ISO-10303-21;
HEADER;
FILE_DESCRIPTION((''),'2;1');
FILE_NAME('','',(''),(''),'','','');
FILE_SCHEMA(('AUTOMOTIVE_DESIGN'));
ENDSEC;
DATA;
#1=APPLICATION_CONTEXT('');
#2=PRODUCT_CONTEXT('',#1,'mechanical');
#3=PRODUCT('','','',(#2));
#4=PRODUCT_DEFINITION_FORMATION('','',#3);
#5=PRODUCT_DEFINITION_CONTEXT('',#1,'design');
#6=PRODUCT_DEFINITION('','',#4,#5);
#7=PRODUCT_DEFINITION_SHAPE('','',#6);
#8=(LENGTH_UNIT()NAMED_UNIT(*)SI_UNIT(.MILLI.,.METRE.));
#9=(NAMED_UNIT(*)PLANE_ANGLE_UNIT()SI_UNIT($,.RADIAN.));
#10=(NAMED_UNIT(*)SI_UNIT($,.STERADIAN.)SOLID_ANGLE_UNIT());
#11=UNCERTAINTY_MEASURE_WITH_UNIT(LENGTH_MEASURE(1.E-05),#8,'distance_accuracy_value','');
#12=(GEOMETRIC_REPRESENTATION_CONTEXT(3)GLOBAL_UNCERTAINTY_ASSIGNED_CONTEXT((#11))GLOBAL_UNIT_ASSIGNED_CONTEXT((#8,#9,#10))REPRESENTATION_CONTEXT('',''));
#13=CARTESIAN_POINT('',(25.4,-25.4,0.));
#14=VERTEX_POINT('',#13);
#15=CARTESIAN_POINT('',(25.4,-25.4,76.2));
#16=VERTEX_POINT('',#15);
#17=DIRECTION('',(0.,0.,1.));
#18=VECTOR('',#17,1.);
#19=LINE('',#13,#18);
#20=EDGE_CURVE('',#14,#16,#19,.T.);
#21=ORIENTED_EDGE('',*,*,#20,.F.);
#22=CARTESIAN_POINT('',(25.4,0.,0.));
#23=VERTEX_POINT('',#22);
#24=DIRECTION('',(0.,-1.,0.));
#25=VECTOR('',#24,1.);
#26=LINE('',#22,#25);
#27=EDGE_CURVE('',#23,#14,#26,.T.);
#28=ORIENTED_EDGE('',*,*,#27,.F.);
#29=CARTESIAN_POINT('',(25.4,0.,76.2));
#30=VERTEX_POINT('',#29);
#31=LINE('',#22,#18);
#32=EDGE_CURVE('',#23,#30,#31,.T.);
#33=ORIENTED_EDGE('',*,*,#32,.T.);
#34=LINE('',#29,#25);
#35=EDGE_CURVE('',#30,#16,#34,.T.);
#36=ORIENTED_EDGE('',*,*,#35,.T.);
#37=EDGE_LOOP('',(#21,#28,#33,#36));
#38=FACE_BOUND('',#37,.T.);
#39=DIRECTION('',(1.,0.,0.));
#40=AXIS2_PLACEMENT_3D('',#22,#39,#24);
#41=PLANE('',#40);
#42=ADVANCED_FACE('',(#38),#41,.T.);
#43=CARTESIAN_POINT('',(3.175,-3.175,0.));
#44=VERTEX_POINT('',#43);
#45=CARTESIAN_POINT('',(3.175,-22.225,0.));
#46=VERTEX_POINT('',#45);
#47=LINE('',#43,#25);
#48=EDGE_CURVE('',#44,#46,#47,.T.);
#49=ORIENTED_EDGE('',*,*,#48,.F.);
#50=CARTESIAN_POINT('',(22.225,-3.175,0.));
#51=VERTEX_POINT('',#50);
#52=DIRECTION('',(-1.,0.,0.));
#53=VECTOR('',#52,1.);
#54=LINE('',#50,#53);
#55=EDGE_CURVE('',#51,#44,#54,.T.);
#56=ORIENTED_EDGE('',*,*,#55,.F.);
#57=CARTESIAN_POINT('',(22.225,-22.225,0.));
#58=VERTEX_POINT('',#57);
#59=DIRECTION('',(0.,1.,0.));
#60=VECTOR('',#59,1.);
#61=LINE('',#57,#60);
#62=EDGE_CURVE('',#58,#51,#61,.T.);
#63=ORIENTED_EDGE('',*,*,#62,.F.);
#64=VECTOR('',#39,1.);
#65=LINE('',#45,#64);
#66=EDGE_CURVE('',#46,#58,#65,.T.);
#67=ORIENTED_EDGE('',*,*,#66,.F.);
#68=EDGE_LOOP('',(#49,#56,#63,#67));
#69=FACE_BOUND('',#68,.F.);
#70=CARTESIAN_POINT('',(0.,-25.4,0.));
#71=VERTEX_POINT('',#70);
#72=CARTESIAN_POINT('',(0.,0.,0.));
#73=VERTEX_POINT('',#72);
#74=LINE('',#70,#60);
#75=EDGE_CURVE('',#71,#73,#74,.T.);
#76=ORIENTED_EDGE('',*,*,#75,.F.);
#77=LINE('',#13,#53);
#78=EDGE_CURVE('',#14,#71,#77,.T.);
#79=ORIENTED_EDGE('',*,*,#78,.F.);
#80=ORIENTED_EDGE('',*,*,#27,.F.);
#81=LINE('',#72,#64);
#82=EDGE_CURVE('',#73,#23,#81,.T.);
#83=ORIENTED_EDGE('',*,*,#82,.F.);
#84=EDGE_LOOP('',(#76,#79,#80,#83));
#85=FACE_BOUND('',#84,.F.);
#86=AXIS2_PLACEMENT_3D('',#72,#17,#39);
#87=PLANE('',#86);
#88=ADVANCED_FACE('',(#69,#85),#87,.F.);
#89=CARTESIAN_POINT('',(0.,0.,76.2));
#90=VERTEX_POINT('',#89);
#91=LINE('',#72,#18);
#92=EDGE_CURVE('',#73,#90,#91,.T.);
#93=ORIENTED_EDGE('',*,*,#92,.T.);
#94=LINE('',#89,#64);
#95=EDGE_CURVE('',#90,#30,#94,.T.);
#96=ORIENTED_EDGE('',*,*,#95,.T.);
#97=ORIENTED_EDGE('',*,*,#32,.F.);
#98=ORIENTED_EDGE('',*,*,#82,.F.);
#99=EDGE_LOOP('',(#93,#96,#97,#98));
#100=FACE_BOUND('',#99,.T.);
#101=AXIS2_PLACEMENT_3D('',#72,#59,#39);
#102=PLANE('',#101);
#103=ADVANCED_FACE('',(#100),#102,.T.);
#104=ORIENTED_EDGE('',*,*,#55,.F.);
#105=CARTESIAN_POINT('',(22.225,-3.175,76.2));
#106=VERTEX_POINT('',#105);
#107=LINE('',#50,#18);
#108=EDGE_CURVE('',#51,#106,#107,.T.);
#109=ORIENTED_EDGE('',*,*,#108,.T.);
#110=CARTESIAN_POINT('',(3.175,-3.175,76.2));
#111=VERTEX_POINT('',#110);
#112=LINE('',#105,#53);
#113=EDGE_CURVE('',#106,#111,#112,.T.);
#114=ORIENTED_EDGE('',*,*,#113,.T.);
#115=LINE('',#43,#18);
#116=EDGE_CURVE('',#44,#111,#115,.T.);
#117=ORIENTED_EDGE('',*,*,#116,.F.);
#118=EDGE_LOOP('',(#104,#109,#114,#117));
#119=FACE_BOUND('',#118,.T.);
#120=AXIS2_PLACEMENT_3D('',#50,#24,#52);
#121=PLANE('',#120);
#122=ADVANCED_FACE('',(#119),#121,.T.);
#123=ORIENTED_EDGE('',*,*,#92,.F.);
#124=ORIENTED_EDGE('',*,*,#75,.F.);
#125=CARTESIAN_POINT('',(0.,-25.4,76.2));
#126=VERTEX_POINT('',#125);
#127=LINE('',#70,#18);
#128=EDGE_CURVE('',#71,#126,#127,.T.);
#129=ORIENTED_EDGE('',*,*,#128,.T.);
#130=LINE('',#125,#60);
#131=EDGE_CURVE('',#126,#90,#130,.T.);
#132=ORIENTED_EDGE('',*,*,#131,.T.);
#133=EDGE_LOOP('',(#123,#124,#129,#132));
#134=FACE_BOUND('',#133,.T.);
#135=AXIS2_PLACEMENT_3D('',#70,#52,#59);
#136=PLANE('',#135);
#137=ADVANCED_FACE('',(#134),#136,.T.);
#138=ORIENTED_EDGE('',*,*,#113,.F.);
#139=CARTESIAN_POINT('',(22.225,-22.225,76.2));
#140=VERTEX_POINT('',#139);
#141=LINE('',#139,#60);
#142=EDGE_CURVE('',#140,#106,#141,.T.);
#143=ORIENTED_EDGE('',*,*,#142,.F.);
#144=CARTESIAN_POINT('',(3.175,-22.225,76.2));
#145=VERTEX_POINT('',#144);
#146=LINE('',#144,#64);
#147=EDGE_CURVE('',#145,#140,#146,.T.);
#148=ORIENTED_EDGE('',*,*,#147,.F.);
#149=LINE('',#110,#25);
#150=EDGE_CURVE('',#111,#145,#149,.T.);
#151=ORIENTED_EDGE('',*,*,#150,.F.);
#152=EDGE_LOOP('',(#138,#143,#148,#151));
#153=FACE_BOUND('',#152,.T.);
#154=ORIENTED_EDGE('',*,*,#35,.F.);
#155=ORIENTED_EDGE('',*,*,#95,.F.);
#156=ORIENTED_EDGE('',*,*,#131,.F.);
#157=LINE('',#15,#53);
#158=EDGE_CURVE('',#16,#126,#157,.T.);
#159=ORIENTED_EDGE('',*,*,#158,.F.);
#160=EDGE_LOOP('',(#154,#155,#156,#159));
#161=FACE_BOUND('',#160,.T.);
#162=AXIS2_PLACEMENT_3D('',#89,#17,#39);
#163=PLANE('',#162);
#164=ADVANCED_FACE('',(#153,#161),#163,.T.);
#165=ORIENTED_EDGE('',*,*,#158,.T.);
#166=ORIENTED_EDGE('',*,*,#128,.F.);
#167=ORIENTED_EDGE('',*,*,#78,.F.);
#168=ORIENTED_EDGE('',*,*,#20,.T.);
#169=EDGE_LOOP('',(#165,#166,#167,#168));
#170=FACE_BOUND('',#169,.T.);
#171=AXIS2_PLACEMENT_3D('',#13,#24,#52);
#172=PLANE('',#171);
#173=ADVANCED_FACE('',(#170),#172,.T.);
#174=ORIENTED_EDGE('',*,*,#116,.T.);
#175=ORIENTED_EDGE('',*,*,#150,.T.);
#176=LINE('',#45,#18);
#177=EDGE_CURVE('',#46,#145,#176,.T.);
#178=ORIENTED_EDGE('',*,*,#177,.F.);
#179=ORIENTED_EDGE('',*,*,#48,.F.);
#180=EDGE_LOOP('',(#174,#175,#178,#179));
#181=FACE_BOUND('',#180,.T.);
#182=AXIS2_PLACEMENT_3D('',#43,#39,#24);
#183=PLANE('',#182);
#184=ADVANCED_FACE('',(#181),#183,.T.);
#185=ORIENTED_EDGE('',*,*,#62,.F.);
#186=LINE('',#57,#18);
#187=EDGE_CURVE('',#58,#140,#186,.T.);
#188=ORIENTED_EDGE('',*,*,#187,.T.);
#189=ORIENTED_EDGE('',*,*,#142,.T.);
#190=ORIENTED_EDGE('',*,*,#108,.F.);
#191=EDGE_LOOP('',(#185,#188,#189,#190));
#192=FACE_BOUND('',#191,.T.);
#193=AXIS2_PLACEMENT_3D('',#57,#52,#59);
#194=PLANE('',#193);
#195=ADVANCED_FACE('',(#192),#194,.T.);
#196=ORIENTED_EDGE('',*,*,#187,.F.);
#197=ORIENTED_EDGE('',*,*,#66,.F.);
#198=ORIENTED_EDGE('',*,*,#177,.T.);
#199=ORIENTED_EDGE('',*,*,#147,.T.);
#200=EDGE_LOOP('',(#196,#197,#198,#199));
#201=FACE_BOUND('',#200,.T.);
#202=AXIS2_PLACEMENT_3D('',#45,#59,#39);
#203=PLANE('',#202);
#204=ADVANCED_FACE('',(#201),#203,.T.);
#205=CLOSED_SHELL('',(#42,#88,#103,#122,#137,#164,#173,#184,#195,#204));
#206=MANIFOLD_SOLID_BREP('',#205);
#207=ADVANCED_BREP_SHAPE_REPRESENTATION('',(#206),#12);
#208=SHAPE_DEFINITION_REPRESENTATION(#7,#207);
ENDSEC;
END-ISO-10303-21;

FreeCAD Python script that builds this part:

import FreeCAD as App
import Part
import Sketcher
Q = App.Units.Quantity

doc = App.newDocument("Part")
body = doc.addObject("PartDesign::Body", "Body")

# Sketch on XY plane
sketch1 = doc.addObject("Sketcher::SketchObject", "Sketch")
body.addObject(sketch1)
sketch1.AttachmentSupport = (doc.XY_Plane, [""])
sketch1.MapMode = "FlatFace"
sketch1.addGeometry(Part.LineSegment(App.Vector(25, 0, 0), App.Vector(0, 0, 0)), False)
sketch1.addGeometry(Part.LineSegment(App.Vector(0, 0, 0), App.Vector(0, -25, 0)), False)
sketch1.addGeometry(Part.LineSegment(App.Vector(0, -25, 0), App.Vector(25, -25, 0)), False)
sketch1.addGeometry(Part.LineSegment(App.Vector(25, -25, 0), App.Vector(25, 0, 0)), False)
sketch1.addGeometry(Part.LineSegment(App.Vector(3, -3, 0), App.Vector(22, -3, 0)), False)
sketch1.addGeometry(Part.LineSegment(App.Vector(22, -3, 0), App.Vector(22, -22, 0)), False)
sketch1.addGeometry(Part.LineSegment(App.Vector(22, -22, 0), App.Vector(3, -22, 0)), False)
sketch1.addGeometry(Part.LineSegment(App.Vector(3, -22, 0), App.Vector(3, -3, 0)), False)
sketch1.addConstraint(Sketcher.Constraint("Coincident", 0, 2, 1, 1))
sketch1.addConstraint(Sketcher.Constraint("Coincident", 1, 2, 2, 1))
sketch1.addConstraint(Sketcher.Constraint("Coincident", 2, 2, 3, 1))
sketch1.addConstraint(Sketcher.Constraint("Coincident", 3, 2, 0, 1))
sketch1.addConstraint(Sketcher.Constraint("Coincident", 4, 2, 5, 1))
sketch1.addConstraint(Sketcher.Constraint("Coincident", 5, 2, 6, 1))
sketch1.addConstraint(Sketcher.Constraint("Coincident", 6, 2, 7, 1))
sketch1.addConstraint(Sketcher.Constraint("Coincident", 7, 2, 4, 1))
sketch1.addConstraint(Sketcher.Constraint("Horizontal", 0))
sketch1.addConstraint(Sketcher.Constraint("Vertical", 1))
sketch1.addConstraint(Sketcher.Constraint("Horizontal", 2))
sketch1.addConstraint(Sketcher.Constraint("Vertical", 3))
sketch1.addConstraint(Sketcher.Constraint("Horizontal", 4))
sketch1.addConstraint(Sketcher.Constraint("Vertical", 5))
sketch1.addConstraint(Sketcher.Constraint("Horizontal", 6))
sketch1.addConstraint(Sketcher.Constraint("Vertical", 7))
sketch1.addConstraint(Sketcher.Constraint("Coincident", 0, 2, -1, 1))
sketch1.addConstraint(Sketcher.Constraint("Equal", 2, 1))
sketch1.addConstraint(Sketcher.Constraint("Equal", 6, 5))
sketch1.addConstraint(Sketcher.Constraint("DistanceX", 0, 2, 0, 1, Q("1 in")))
sketch1.addConstraint(Sketcher.Constraint("DistanceY", 4, 2, -1, 1, Q("0.125 in")))
sketch1.addConstraint(Sketcher.Constraint("DistanceX", -1, 1, 6, 2, Q("0.125 in")))
sketch1.addConstraint(Sketcher.Constraint("DistanceX", 4, 2, 3, 2, Q("0.125 in")))
pad1 = doc.addObject("PartDesign::Pad", "Pad")
body.addObject(pad1)
pad1.Profile = sketch1
pad1.Length = Q("3 in")

doc.recompute()
